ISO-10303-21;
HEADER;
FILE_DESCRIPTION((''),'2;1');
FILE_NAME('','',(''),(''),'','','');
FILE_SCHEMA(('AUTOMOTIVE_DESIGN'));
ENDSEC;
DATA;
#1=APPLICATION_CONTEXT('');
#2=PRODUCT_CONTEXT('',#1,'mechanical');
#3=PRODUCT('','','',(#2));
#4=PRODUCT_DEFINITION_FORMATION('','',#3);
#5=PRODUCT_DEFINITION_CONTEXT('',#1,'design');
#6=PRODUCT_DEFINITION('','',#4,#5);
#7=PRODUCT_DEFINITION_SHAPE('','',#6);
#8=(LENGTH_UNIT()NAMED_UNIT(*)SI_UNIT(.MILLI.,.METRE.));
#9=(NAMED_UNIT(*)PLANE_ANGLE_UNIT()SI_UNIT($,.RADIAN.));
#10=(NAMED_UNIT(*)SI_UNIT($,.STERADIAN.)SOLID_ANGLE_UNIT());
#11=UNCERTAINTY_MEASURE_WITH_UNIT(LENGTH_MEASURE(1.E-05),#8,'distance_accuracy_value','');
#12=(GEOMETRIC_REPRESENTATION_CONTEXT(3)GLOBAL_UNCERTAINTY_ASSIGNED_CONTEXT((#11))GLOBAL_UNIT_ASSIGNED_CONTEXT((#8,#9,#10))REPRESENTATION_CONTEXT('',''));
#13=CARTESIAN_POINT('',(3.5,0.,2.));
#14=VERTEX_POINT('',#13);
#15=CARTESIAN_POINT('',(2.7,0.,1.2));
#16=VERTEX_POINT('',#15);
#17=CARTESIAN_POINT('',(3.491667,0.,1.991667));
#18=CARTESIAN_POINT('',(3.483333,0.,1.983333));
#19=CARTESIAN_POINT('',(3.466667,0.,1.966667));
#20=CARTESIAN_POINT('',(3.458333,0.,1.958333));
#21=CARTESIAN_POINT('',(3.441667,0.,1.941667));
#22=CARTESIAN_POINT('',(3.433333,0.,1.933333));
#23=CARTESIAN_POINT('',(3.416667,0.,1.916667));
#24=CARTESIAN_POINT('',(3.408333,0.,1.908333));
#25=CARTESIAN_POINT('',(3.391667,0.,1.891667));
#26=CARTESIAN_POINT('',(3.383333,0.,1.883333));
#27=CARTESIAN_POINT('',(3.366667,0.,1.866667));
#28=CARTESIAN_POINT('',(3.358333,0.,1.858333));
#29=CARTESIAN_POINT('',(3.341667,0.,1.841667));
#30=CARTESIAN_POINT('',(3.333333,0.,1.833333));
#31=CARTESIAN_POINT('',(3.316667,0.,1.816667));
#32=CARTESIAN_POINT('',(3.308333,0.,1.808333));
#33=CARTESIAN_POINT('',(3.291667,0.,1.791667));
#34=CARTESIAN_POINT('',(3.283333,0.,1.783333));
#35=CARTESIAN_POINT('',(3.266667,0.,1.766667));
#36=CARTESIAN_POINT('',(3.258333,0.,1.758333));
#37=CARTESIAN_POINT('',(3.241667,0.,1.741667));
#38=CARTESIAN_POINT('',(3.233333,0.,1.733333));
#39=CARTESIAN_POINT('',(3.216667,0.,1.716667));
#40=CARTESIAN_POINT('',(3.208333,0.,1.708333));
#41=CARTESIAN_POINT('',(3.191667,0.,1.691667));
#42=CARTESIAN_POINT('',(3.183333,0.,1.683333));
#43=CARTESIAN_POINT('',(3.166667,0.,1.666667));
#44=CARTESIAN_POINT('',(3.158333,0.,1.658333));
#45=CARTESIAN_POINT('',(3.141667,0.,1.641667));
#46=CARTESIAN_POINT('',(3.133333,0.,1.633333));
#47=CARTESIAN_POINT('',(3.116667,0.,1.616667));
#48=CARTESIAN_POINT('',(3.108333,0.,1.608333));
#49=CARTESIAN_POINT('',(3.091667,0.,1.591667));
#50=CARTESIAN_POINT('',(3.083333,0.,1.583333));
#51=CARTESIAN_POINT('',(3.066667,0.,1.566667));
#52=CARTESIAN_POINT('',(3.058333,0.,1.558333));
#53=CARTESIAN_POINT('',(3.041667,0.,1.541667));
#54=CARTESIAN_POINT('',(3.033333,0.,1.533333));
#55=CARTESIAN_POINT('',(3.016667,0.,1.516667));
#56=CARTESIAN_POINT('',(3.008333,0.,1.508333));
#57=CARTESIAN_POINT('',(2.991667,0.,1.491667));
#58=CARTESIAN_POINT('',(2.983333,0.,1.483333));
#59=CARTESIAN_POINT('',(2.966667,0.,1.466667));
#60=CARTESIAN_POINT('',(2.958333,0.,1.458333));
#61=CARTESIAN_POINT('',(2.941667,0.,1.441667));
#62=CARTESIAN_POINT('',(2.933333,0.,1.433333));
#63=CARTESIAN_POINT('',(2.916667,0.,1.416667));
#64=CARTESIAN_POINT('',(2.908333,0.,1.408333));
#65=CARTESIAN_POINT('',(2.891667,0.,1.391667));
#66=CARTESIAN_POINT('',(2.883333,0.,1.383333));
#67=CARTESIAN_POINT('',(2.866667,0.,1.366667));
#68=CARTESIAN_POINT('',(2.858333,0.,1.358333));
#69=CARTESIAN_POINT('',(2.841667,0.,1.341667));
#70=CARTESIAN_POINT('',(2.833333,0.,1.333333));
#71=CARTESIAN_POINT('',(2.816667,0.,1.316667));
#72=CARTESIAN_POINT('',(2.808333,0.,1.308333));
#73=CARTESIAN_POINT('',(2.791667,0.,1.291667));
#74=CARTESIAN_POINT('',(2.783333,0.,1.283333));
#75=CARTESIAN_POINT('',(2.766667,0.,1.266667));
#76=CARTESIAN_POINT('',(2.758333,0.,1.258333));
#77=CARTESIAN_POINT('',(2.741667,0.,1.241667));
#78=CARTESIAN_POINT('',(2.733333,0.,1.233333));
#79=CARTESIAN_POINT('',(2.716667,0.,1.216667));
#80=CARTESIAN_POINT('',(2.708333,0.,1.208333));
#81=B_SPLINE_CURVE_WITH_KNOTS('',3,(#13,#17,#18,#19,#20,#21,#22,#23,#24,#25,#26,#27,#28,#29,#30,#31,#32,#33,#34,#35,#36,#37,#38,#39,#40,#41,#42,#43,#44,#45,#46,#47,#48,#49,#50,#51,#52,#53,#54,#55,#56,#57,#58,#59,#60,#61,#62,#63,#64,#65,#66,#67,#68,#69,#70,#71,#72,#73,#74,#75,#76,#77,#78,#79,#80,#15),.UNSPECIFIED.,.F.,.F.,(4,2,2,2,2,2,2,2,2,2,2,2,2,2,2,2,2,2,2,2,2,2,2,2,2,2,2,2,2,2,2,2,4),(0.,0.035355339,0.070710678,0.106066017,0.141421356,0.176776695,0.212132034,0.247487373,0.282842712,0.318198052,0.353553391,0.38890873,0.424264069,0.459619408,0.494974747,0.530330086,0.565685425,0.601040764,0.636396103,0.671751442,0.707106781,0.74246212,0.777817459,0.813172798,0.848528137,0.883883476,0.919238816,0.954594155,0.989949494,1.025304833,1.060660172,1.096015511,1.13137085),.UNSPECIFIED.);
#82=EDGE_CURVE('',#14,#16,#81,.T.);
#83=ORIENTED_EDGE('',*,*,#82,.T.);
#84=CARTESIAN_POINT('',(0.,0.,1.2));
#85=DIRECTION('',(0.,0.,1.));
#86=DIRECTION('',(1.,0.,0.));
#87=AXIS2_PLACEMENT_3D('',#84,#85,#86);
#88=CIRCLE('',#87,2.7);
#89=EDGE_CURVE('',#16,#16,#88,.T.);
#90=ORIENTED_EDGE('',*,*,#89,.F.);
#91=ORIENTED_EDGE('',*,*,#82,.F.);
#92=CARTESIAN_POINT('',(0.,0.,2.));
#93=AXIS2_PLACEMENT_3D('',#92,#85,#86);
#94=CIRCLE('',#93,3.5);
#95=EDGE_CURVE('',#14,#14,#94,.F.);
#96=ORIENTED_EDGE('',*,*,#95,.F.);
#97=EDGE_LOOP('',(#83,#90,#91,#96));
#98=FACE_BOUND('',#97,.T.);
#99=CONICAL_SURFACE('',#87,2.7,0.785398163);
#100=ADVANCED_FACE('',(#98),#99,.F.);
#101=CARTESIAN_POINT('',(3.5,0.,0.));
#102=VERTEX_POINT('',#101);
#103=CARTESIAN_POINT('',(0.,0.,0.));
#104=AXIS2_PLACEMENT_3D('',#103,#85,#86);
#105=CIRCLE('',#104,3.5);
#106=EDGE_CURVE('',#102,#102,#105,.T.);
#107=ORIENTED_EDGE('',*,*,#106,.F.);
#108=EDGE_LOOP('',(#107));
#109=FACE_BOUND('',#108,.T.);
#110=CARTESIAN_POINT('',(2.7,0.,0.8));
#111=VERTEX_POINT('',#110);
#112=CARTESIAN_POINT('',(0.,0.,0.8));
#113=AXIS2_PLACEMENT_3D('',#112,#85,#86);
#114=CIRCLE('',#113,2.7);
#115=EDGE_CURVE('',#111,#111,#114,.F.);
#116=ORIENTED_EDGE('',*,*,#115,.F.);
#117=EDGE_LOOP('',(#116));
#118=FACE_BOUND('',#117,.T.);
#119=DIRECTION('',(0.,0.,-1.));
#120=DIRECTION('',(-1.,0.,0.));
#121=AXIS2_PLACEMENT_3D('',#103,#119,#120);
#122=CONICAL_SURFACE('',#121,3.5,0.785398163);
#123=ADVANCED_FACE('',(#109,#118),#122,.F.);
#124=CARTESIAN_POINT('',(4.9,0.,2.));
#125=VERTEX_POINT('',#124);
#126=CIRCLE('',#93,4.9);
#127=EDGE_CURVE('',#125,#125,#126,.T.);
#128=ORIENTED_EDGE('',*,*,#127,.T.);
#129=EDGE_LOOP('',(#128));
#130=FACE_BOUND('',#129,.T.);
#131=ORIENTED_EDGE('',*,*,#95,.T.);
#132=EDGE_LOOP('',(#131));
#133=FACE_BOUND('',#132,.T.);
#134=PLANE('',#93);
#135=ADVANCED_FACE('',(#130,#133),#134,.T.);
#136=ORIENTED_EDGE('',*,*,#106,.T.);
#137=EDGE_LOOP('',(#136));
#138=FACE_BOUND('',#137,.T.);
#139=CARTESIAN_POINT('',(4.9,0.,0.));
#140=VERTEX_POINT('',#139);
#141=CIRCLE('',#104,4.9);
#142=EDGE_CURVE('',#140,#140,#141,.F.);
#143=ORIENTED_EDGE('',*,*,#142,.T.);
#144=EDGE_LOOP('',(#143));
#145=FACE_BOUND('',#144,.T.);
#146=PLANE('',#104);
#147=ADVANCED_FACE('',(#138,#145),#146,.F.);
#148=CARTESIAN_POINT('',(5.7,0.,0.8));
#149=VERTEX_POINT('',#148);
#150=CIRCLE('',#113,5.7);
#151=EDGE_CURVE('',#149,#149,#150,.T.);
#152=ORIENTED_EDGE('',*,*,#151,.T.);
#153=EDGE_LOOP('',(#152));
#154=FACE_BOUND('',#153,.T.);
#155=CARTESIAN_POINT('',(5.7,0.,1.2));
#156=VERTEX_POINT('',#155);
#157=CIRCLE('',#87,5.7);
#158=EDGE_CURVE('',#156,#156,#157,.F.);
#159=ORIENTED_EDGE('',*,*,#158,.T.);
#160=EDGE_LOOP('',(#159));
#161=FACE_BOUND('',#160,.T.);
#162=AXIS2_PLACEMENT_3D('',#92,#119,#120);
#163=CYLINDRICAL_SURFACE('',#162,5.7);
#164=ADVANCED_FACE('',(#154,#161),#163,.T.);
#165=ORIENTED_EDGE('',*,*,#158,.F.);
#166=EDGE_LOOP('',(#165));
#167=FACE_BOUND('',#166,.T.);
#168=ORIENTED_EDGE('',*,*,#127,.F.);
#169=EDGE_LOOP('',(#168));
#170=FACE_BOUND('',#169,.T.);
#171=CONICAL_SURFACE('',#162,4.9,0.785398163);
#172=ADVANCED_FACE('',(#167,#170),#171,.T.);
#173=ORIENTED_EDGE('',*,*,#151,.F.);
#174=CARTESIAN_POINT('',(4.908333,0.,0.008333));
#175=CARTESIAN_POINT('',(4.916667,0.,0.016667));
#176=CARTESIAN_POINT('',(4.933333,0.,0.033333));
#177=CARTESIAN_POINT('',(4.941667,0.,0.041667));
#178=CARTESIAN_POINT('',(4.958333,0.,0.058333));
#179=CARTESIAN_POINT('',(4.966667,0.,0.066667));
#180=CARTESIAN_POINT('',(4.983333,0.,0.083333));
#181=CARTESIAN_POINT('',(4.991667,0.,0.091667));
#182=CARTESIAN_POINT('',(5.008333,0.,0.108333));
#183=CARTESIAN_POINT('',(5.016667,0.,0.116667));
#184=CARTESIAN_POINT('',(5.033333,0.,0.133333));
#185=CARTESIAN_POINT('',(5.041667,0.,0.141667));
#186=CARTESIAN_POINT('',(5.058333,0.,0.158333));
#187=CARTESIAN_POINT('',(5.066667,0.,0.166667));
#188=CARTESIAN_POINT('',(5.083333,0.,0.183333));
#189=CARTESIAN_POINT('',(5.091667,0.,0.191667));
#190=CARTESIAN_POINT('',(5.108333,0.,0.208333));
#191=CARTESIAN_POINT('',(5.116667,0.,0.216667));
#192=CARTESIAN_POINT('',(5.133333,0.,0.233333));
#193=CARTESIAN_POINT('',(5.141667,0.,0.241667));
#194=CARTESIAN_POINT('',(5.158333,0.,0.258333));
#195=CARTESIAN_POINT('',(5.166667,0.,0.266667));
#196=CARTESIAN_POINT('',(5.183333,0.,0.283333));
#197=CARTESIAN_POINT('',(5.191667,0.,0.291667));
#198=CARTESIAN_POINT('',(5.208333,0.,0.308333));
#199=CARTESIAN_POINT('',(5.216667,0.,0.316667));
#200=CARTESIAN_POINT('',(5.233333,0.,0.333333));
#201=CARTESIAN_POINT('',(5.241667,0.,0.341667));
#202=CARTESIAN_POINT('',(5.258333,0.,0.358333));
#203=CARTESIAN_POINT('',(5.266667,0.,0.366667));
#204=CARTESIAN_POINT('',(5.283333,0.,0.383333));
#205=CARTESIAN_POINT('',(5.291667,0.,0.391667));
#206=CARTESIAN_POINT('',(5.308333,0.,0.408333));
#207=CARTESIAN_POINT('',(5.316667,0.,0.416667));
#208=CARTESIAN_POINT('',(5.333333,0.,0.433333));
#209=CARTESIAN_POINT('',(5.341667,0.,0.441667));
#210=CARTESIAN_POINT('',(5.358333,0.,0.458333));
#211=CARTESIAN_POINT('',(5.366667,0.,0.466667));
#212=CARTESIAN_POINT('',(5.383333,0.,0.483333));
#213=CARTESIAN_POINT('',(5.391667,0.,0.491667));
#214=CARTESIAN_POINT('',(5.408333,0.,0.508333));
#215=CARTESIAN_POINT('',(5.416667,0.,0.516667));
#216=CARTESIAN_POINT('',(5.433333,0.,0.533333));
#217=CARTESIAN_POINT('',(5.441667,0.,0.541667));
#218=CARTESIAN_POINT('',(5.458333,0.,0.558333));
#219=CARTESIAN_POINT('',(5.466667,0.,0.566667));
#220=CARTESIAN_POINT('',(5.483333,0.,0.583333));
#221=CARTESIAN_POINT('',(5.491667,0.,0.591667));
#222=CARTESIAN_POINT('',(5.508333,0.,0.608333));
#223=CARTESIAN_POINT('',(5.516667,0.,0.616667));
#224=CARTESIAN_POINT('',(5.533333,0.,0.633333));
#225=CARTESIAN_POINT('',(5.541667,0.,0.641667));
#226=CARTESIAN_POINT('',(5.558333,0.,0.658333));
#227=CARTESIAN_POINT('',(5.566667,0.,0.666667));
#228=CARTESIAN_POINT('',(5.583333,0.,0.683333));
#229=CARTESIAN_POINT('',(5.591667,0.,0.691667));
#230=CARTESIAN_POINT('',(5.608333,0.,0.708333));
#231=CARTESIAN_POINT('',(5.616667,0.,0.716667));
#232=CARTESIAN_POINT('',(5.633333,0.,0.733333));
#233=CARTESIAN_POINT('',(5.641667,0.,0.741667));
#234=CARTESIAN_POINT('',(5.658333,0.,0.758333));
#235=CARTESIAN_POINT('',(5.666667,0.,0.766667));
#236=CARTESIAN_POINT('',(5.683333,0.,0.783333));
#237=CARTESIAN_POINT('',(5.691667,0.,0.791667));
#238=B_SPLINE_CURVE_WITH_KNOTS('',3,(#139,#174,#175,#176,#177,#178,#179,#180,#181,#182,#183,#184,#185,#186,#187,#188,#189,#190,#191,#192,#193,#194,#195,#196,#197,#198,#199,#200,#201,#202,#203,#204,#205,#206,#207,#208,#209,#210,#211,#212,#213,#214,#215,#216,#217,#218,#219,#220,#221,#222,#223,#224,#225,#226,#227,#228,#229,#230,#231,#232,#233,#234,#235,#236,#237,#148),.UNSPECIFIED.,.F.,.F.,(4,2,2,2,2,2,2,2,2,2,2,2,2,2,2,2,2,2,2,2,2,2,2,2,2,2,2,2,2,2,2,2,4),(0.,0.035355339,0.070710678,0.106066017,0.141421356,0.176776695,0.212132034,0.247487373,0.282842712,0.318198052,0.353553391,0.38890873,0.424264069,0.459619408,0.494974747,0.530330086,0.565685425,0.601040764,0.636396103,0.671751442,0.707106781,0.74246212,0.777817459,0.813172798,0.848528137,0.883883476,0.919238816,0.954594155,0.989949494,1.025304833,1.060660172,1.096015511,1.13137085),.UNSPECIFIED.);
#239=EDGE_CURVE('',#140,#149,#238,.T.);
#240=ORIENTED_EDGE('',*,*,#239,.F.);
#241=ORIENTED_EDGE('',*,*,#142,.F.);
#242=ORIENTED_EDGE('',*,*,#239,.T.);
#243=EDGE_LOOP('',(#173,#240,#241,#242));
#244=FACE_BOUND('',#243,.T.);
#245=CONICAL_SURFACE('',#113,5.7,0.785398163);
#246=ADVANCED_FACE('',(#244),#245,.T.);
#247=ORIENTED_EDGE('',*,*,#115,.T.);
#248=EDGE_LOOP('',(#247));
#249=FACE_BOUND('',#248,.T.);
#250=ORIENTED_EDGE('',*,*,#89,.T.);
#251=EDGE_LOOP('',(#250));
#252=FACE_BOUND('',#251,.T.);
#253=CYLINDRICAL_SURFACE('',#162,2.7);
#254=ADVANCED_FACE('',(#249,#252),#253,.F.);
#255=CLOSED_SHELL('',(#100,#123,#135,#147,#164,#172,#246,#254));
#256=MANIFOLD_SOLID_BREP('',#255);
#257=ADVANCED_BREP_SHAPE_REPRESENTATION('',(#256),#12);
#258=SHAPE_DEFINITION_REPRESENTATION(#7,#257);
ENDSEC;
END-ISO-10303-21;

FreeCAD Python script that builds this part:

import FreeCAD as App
import Part
import Sketcher

V = App.Vector


def edges_at(feature, points):
    """Names of the edges that pass closest to the given points."""
    edges = feature.Shape.Edges
    near = lambda p: min(range(len(edges)), key=lambda i: edges[i].distToShape(Part.Vertex(*p))[0])
    return sorted({f"Edge{near(p) + 1}" for p in points})

doc = App.newDocument("Part")
body = doc.addObject("PartDesign::Body", "Body")

# Sketch on XY plane
sketch1 = body.newObject("Sketcher::SketchObject", "Sketch")
sketch1.AttachmentSupport = (doc.getObject("XY_Plane"), [""])
sketch1.MapMode = "FlatFace"
sketch1.addGeometry(Part.Circle(V(0, 0, 0), V(0, 0, 1), 5.7), False)
sketch1.addGeometry(Part.Circle(V(0, 0, 0), V(0, 0, 1), 2.7), False)
sketch1.addConstraint(Sketcher.Constraint("Coincident", 0, 3, -1, 1))
sketch1.addConstraint(Sketcher.Constraint("Coincident", 1, 3, -1, 1))
sketch1.addConstraint(Sketcher.Constraint("Diameter", 0, 11.4))
sketch1.addConstraint(Sketcher.Constraint("Diameter", 1, 5.4))
pad1 = body.newObject("PartDesign::Pad", "Pad")
pad1.Profile = sketch1
pad1.Length = 2
doc.recompute()

chamfer = body.newObject("PartDesign::Chamfer", "Chamfer")
chamfer.Base = (pad1, edges_at(pad1, [
    (-5.7, 0, 0),
    (-5.7, 0, 2),
    (-2.7, 0, 0),
    (-2.7, 0, 2),
]))
chamfer.Size = 0.8

doc.recompute()
